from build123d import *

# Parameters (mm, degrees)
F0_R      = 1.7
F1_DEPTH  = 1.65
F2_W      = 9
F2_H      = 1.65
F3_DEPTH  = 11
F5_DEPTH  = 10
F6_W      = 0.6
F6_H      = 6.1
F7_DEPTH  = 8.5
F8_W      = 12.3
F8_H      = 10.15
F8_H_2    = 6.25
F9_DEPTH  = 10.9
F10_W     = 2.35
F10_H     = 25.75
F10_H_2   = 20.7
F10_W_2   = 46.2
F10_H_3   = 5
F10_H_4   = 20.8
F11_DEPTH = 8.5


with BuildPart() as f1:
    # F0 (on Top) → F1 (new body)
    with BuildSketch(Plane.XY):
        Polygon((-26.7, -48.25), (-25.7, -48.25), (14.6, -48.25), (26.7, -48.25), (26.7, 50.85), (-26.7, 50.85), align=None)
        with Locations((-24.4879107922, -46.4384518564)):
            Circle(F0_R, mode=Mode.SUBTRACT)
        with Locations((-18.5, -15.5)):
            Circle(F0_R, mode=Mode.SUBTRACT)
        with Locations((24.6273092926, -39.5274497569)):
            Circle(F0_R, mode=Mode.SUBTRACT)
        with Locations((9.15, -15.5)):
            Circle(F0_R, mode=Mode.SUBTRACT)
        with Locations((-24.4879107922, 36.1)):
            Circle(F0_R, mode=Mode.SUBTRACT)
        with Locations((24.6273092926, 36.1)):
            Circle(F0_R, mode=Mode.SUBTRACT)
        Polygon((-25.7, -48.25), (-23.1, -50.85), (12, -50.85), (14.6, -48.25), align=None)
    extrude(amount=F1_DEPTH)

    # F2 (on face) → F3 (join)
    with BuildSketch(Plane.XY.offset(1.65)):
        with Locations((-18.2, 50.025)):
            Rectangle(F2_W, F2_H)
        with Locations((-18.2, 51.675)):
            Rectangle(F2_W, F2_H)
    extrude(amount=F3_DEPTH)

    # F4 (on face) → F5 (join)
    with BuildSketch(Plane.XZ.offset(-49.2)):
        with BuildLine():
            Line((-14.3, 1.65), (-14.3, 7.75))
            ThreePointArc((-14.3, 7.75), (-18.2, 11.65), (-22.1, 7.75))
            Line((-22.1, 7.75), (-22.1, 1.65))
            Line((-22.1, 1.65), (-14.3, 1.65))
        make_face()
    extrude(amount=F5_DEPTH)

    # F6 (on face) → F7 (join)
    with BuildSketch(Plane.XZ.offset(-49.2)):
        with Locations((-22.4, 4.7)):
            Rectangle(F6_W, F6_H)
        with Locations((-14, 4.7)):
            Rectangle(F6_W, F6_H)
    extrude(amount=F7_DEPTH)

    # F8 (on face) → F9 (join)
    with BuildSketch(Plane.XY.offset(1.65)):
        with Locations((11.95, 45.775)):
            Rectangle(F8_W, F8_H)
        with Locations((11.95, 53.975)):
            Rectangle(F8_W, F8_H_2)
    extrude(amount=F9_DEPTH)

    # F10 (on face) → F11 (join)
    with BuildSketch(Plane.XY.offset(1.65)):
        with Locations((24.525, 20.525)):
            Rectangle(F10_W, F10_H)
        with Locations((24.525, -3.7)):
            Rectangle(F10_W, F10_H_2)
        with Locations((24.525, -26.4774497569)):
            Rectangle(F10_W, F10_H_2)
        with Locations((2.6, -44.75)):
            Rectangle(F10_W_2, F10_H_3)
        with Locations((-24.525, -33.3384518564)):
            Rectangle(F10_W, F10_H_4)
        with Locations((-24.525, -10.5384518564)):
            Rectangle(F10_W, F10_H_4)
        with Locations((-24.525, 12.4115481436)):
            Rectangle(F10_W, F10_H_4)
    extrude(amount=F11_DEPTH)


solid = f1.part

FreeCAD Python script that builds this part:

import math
import FreeCAD as App
import Part
import Sketcher
from FreeCAD import Vector

doc = App.newDocument("Part")
params = doc.addObject("Spreadsheet::Sheet", "Params")
for row, (alias, value) in enumerate([
    ("sketch1_diameter", "3.4 mm"),
    ("sketch1_width", "1 mm"),
    ("sketch1_width2", "35.1 mm"),
    ("sketch1_width3", "12.1 mm"),
    ("sketch1_width4", "53.4 mm"),
    ("pad1_length", "1.65 mm"),
    ("sketch2_width", "9 mm"),
    ("sketch2_height", "3.3 mm"),
    ("pad2_length", "11 mm"),
    ("sketch3_radius", "3.9 mm"),
    ("sketch3_height", "6.1 mm"),
    ("pad3_length", "10 mm"),
    ("sketch4_width", "0.6 mm"),
    ("sketch4_height", "6.1 mm"),
    ("pad4_length", "8.5 mm"),
    ("sketch5_width", "12.3 mm"),
    ("sketch5_height", "16.4 mm"),
    ("pad5_length", "10.9 mm"),
    ("sketch6_height", "5 mm"),
    ("sketch6_width", "46.2 mm"),
    ("sketch6_height2", "20.7 mm"),
    ("sketch6_height3", "20.8 mm"),
    ("sketch6_width2", "2.35 mm"),
    ("pad6_length", "8.5 mm"),
], start=1):
    params.set(f"A{row}", alias)
    params.set(f"B{row}", "=" + value)
    params.setAlias(f"B{row}", alias)

body = doc.addObject("PartDesign::Body", "Body")

# Sketch on XY plane
sketch1 = body.newObject("Sketcher::SketchObject", "Sketch")
sketch1.AttachmentSupport = (doc.getObject("XY_Plane"), [""])
sketch1.MapMode = "FlatFace"
sketch1.addGeometry([
    Part.LineSegment(Vector(-26.7, -48.2, 0), Vector(-25.7, -48.2, 0)),  # 0
    Part.LineSegment(Vector(-25.7, -48.2, 0), Vector(-23.1, -50.9, 0)),  # 1
    Part.LineSegment(Vector(-23.1, -50.9, 0), Vector(12, -50.9, 0)),  # 2
    Part.LineSegment(Vector(12, -50.9, 0), Vector(14.6, -48.2, 0)),  # 3
    Part.LineSegment(Vector(14.6, -48.2, 0), Vector(26.7, -48.2, 0)),  # 4
    Part.LineSegment(Vector(26.7, -48.2, 0), Vector(26.7, 50.9, 0)),  # 5
    Part.LineSegment(Vector(26.7, 50.9, 0), Vector(-26.7, 50.9, 0)),  # 6
    Part.LineSegment(Vector(-26.7, 50.9, 0), Vector(-26.7, -48.2, 0)),  # 7
    Part.Circle(Vector(-24.5, -46.4, 0), Vector(0, 0, 1), 1.7),  # 8
    Part.Circle(Vector(-18.5, -15.5, 0), Vector(0, 0, 1), 1.7),  # 9
    Part.Circle(Vector(24.6, -39.5, 0), Vector(0, 0, 1), 1.7),  # 10
    Part.Circle(Vector(9.2, -15.5, 0), Vector(0, 0, 1), 1.7),  # 11
    Part.Circle(Vector(-24.5, 36.1, 0), Vector(0, 0, 1), 1.7),  # 12
    Part.Circle(Vector(24.6, 36.1, 0), Vector(0, 0, 1), 1.7),  # 13
], False)
sketch1.addConstraint([
    Sketcher.Constraint("Coincident", 0, 2, 1, 1),
    Sketcher.Constraint("Coincident", 1, 2, 2, 1),
    Sketcher.Constraint("Coincident", 2, 2, 3, 1),
    Sketcher.Constraint("Coincident", 3, 2, 4, 1),
    Sketcher.Constraint("Coincident", 4, 2, 5, 1),
    Sketcher.Constraint("Coincident", 5, 2, 6, 1),
    Sketcher.Constraint("Coincident", 6, 2, 7, 1),
    Sketcher.Constraint("Coincident", 7, 2, 0, 1),
    Sketcher.Constraint("Horizontal", 0),
    Sketcher.Constraint("Horizontal", 2),
    Sketcher.Constraint("Horizontal", 4),
    Sketcher.Constraint("Vertical", 5),
    Sketcher.Constraint("Horizontal", 6),
    Sketcher.Constraint("Vertical", 7),
    Sketcher.Constraint("Equal", 8, 9),
    Sketcher.Constraint("Equal", 9, 10),
    Sketcher.Constraint("Equal", 10, 11),
    Sketcher.Constraint("Equal", 11, 12),
    Sketcher.Constraint("Equal", 12, 13),
    Sketcher.Constraint("Symmetric", 4, 2, 7, 2, -2),
    Sketcher.Constraint("Perpendicular", 1, 3),
    Sketcher.Constraint("Horizontal", 9, 3, 11, 3),
    Sketcher.Constraint("Horizontal", 12, 3, 13, 3),
    Sketcher.Constraint("Vertical", 8, 3, 12, 3),
    Sketcher.Constraint("Vertical", 10, 3, 13, 3),
    Sketcher.Constraint("Equal", 1, 3),
    Sketcher.Constraint("Diameter", 8, 3.4),
    Sketcher.Constraint("DistanceX", 0, 1, 0, 2, 1.0),
    Sketcher.Constraint("DistanceX", 2, 1, 2, 2, 35.1),
    Sketcher.Constraint("DistanceX", 4, 1, 4, 2, 12.1),
    Sketcher.Constraint("DistanceX", 6, 2, 6, 1, 53.4),
    Sketcher.Constraint("DistanceY", 5, 1, 5, 2, 99.1),
    Sketcher.Constraint("DistanceX", 9, 3, -1, 1, 18.5),
    Sketcher.Constraint("DistanceY", 9, 3, -1, 1, 15.5),
    Sketcher.Constraint("DistanceY", -1, 1, 12, 3, 36.1),
    Sketcher.Constraint("DistanceX", -1, 1, 11, 3, 9.15),
    Sketcher.Constraint("DistanceY", 0, 2, -1, 1, 48.25),
    Sketcher.Constraint("DistanceX", 8, 3, -1, 1, 24.487911),
    Sketcher.Constraint("DistanceY", 8, 3, -1, 1, 46.438452),
    Sketcher.Constraint("DistanceX", -1, 1, 10, 3, 24.627309),
    Sketcher.Constraint("DistanceY", 10, 3, -1, 1, 39.52745),
])
sketch1.setExpression("Constraints[26]", "Params.sketch1_diameter")
sketch1.setExpression("Constraints[27]", "Params.sketch1_width")
sketch1.setExpression("Constraints[28]", "Params.sketch1_width2")
sketch1.setExpression("Constraints[29]", "Params.sketch1_width3")
sketch1.setExpression("Constraints[30]", "Params.sketch1_width4")
pad1 = body.newObject("PartDesign::Pad", "Pad")
pad1.Profile = sketch1
pad1.setExpression("Length", "Params.pad1_length")

# Sketch on XY plane
sketch2 = body.newObject("Sketcher::SketchObject", "Sketch001")
sketch2.AttachmentSupport = (doc.getObject("XY_Plane"), [""])
sketch2.MapMode = "FlatFace"
sketch2.AttachmentOffset = App.Placement(Vector(0, 0, 1.65), App.Rotation())
sketch2.addGeometry([
    Part.LineSegment(Vector(-22.7, 49.2, 0), Vector(-13.7, 49.2, 0)),
    Part.LineSegment(Vector(-13.7, 49.2, 0), Vector(-13.7, 52.5, 0)),
    Part.LineSegment(Vector(-13.7, 52.5, 0), Vector(-22.7, 52.5, 0)),
    Part.LineSegment(Vector(-22.7, 52.5, 0), Vector(-22.7, 49.2, 0)),
], False)
sketch2.addConstraint([
    Sketcher.Constraint("Coincident", 0, 2, 1, 1),
    Sketcher.Constraint("Coincident", 1, 2, 2, 1),
    Sketcher.Constraint("Coincident", 2, 2, 3, 1),
    Sketcher.Constraint("Coincident", 3, 2, 0, 1),
    Sketcher.Constraint("Horizontal", 0),
    Sketcher.Constraint("Vertical", 1),
    Sketcher.Constraint("Horizontal", 2),
    Sketcher.Constraint("Vertical", 3),
    Sketcher.Constraint("DistanceX", 0, 1, 0, 2, 9.0),
    Sketcher.Constraint("DistanceY", 1, 1, 1, 2, 3.3),
    Sketcher.Constraint("DistanceX", 0, 2, -1, 1, 13.7),
    Sketcher.Constraint("DistanceY", -1, 1, 0, 2, 49.2),
])
sketch2.setExpression("Constraints[8]", "Params.sketch2_width")
sketch2.setExpression("Constraints[9]", "Params.sketch2_height")
pad2 = body.newObject("PartDesign::Pad", "Pad001")
pad2.Profile = sketch2
pad2.setExpression("Length", "Params.pad2_length")

# Sketch on XZ plane
sketch3 = body.newObject("Sketcher::SketchObject", "Sketch002")
sketch3.AttachmentSupport = (doc.getObject("XZ_Plane"), [""])
sketch3.MapMode = "FlatFace"
sketch3.AttachmentOffset = App.Placement(Vector(0, 0, -49.2), App.Rotation())
sketch3.addGeometry([
    Part.LineSegment(Vector(-14.3, 1.6, 0), Vector(-14.3, 7.8, 0)),
    Part.ArcOfCircle(Part.Circle(Vector(-18.2, 7.8, 0), Vector(0, 0, 1), 3.9), math.radians(0), math.radians(180)),
    Part.LineSegment(Vector(-22.1, 7.8, 0), Vector(-22.1, 1.6, 0)),
    Part.LineSegment(Vector(-22.1, 1.6, 0), Vector(-14.3, 1.6, 0)),
], False)
sketch3.addConstraint([
    Sketcher.Constraint("Tangent", 0, 2, 1, 1),
    Sketcher.Constraint("Tangent", 1, 2, 2, 1),
    Sketcher.Constraint("Coincident", 2, 2, 3, 1),
    Sketcher.Constraint("Coincident", 3, 2, 0, 1),
    Sketcher.Constraint("Vertical", 0),
    Sketcher.Constraint("Vertical", 2),
    Sketcher.Constraint("Horizontal", 3),
    Sketcher.Constraint("Radius", 1, 3.9),
    Sketcher.Constraint("DistanceY", 0, 1, 0, 2, 6.1),
    Sketcher.Constraint("DistanceX", 1, 3, -1, 1, 18.2),
    Sketcher.Constraint("DistanceY", -1, 1, 1, 3, 7.75),
])
sketch3.setExpression("Constraints[7]", "Params.sketch3_radius")
sketch3.setExpression("Constraints[8]", "Params.sketch3_height")
pad3 = body.newObject("PartDesign::Pad", "Pad002")
pad3.Profile = sketch3
pad3.setExpression("Length", "Params.pad3_length")

# Sketch on XZ plane
sketch4 = body.newObject("Sketcher::SketchObject", "Sketch003")
sketch4.AttachmentSupport = (doc.getObject("XZ_Plane"), [""])
sketch4.MapMode = "FlatFace"
sketch4.AttachmentOffset = App.Placement(Vector(0, 0, -49.2), App.Rotation())
sketch4.addGeometry([
    Part.LineSegment(Vector(-22.7, 7.8, 0), Vector(-22.7, 1.6, 0)),  # 0
    Part.LineSegment(Vector(-22.7, 1.6, 0), Vector(-22.1, 1.6, 0)),  # 1
    Part.LineSegment(Vector(-22.1, 1.6, 0), Vector(-22.1, 7.8, 0)),  # 2
    Part.LineSegment(Vector(-22.1, 7.8, 0), Vector(-22.7, 7.8, 0)),  # 3
    Part.LineSegment(Vector(-14.3, 7.8, 0), Vector(-14.3, 1.6, 0)),  # 4
    Part.LineSegment(Vector(-14.3, 1.6, 0), Vector(-13.7, 1.6, 0)),  # 5
    Part.LineSegment(Vector(-13.7, 1.6, 0), Vector(-13.7, 7.8, 0)),  # 6
    Part.LineSegment(Vector(-13.7, 7.8, 0), Vector(-14.3, 7.8, 0)),  # 7
], False)
sketch4.addConstraint([
    Sketcher.Constraint("Coincident", 0, 2, 1, 1),
    Sketcher.Constraint("Coincident", 1, 2, 2, 1),
    Sketcher.Constraint("Coincident", 2, 2, 3, 1),
    Sketcher.Constraint("Coincident", 3, 2, 0, 1),
    Sketcher.Constraint("Coincident", 4, 2, 5, 1),
    Sketcher.Constraint("Coincident", 5, 2, 6, 1),
    Sketcher.Constraint("Coincident", 6, 2, 7, 1),
    Sketcher.Constraint("Coincident", 7, 2, 4, 1),
    Sketcher.Constraint("Vertical", 0),
    Sketcher.Constraint("Horizontal", 1),
    Sketcher.Constraint("Vertical", 2),
    Sketcher.Constraint("Horizontal", 3),
    Sketcher.Constraint("Vertical", 4),
    Sketcher.Constraint("Horizontal", 5),
    Sketcher.Constraint("Vertical", 6),
    Sketcher.Constraint("Horizontal", 7),
    Sketcher.Constraint("Horizontal", 1, 2, 4, 2),
    Sketcher.Constraint("Horizontal", 3, 2, 6, 2),
    Sketcher.Constraint("Equal", 3, 5),
    Sketcher.Constraint("DistanceX", 1, 1, 1, 2, 0.6),
    Sketcher.Constraint("DistanceY", 0, 2, 0, 1, 6.1),
    Sketcher.Constraint("DistanceX", 0, 2, 5, 2, 9.0),
    Sketcher.Constraint("DistanceX", 0, 2, -1, 1, 22.7),
    Sketcher.Constraint("DistanceY", -1, 1, 0, 2, 1.65),
])
sketch4.setExpression("Constraints[19]", "Params.sketch4_width")
sketch4.setExpression("Constraints[20]", "Params.sketch4_height")
pad4 = body.newObject("PartDesign::Pad", "Pad003")
pad4.Profile = sketch4
pad4.setExpression("Length", "Params.pad4_length")

# Sketch on XY plane
sketch5 = body.newObject("Sketcher::SketchObject", "Sketch004")
sketch5.AttachmentSupport = (doc.getObject("XY_Plane"), [""])
sketch5.MapMode = "FlatFace"
sketch5.AttachmentOffset = App.Placement(Vector(0, 0, 1.65), App.Rotation())
sketch5.addGeometry([
    Part.LineSegment(Vector(6, 41, 0), Vector(18, 41, 0)),
    Part.LineSegment(Vector(18, 41, 0), Vector(18, 57, 0)),
    Part.LineSegment(Vector(18, 57, 0), Vector(6, 57, 0)),
    Part.LineSegment(Vector(6, 57, 0), Vector(6, 41, 0)),
], False)
sketch5.addConstraint([
    Sketcher.Constraint("Coincident", 0, 2, 1, 1),
    Sketcher.Constraint("Coincident", 1, 2, 2, 1),
    Sketcher.Constraint("Coincident", 2, 2, 3, 1),
    Sketcher.Constraint("Coincident", 3, 2, 0, 1),
    Sketcher.Constraint("Horizontal", 0),
    Sketcher.Constraint("Vertical", 1),
    Sketcher.Constraint("Horizontal", 2),
    Sketcher.Constraint("Vertical", 3),
    Sketcher.Constraint("DistanceX", 0, 1, 0, 2, 12.3),
    Sketcher.Constraint("DistanceY", 1, 1, 1, 2, 16.4),
    Sketcher.Constraint("DistanceX", -1, 1, 0, 2, 18.1),
    Sketcher.Constraint("DistanceY", -1, 1, 0, 2, 40.7),
])
sketch5.setExpression("Constraints[8]", "Params.sketch5_width")
sketch5.setExpression("Constraints[9]", "Params.sketch5_height")
pad5 = body.newObject("PartDesign::Pad", "Pad004")
pad5.Profile = sketch5
pad5.setExpression("Length", "Params.pad5_length")

# Sketch on XY plane
sketch6 = body.newObject("Sketcher::SketchObject", "Sketch005")
sketch6.AttachmentSupport = (doc.getObject("XY_Plane"), [""])
sketch6.MapMode = "FlatFace"
sketch6.AttachmentOffset = App.Placement(Vector(0, 0, 1.65), App.Rotation())
sketch6.addGeometry([
    Part.LineSegment(Vector(23.4, 33.4, 0), Vector(23.4, 7.7, 0)),  # 0
    Part.LineSegment(Vector(23.4, 7.7, 0), Vector(25.7, 7.7, 0)),  # 1
    Part.LineSegment(Vector(25.7, 7.7, 0), Vector(25.7, 33.4, 0)),  # 2
    Part.LineSegment(Vector(25.7, 33.4, 0), Vector(23.4, 33.4, 0)),  # 3
    Part.LineSegment(Vector(23.4, 6.7, 0), Vector(23.4, -14.1, 0)),  # 4
    Part.LineSegment(Vector(23.4, -14.1, 0), Vector(25.7, -14.1, 0)),  # 5
    Part.LineSegment(Vector(25.7, -14.1, 0), Vector(25.7, 6.7, 0)),  # 6
    Part.LineSegment(Vector(25.7, 6.7, 0), Vector(23.4, 6.7, 0)),  # 7
    Part.LineSegment(Vector(23.4, -16.1, 0), Vector(23.4, -36.8, 0)),  # 8
    Part.LineSegment(Vector(23.4, -36.8, 0), Vector(25.7, -36.8, 0)),  # 9
    Part.LineSegment(Vector(25.7, -36.8, 0), Vector(25.7, -16.1, 0)),  # 10
    Part.LineSegment(Vector(25.7, -16.1, 0), Vector(23.4, -16.1, 0)),  # 11
    Part.LineSegment(Vector(-20.5, -42.2, 0), Vector(-20.5, -47.2, 0)),  # 12
    Part.LineSegment(Vector(-20.5, -47.2, 0), Vector(25.7, -47.2, 0)),  # 13
    Part.LineSegment(Vector(25.7, -47.2, 0), Vector(25.7, -42.2, 0)),  # 14
    Part.LineSegment(Vector(25.7, -42.2, 0), Vector(-20.5, -42.2, 0)),  # 15
    Part.LineSegment(Vector(-25.7, -22.9, 0), Vector(-25.7, -43.7, 0)),  # 16
    Part.LineSegment(Vector(-25.7, -43.7, 0), Vector(-23.4, -43.7, 0)),  # 17
    Part.LineSegment(Vector(-23.4, -43.7, 0), Vector(-23.4, -22.9, 0)),  # 18
    Part.LineSegment(Vector(-23.4, -22.9, 0), Vector(-25.7, -22.9, 0)),  # 19
    Part.LineSegment(Vector(-25.7, -0.1, 0), Vector(-25.7, -20.9, 0)),  # 20
    Part.LineSegment(Vector(-25.7, -20.9, 0), Vector(-23.4, -20.9, 0)),  # 21
    Part.LineSegment(Vector(-23.4, -20.9, 0), Vector(-23.4, -0.1, 0)),  # 22
    Part.LineSegment(Vector(-23.4, -0.1, 0), Vector(-25.7, -0.1, 0)),  # 23
    Part.LineSegment(Vector(-25.7, 22.8, 0), Vector(-25.7, 2, 0)),  # 24
    Part.LineSegment(Vector(-25.7, 2, 0), Vector(-23.4, 2, 0)),  # 25
    Part.LineSegment(Vector(-23.4, 2, 0), Vector(-23.4, 22.8, 0)),  # 26
    Part.LineSegment(Vector(-23.4, 22.8, 0), Vector(-25.7, 22.8, 0)),  # 27
], False)
sketch6.addConstraint([
    Sketcher.Constraint("Coincident", 0, 2, 1, 1),
    Sketcher.Constraint("Coincident", 1, 2, 2, 1),
    Sketcher.Constraint("Coincident", 2, 2, 3, 1),
    Sketcher.Constraint("Coincident", 3, 2, 0, 1),
    Sketcher.Constraint("Coincident", 4, 2, 5, 1),
    Sketcher.Constraint("Coincident", 5, 2, 6, 1),
    Sketcher.Constraint("Coincident", 6, 2, 7, 1),
    Sketcher.Constraint("Coincident", 7, 2, 4, 1),
    Sketcher.Constraint("Coincident", 8, 2, 9, 1),
    Sketcher.Constraint("Coincident", 9, 2, 10, 1),
    Sketcher.Constraint("Coincident", 10, 2, 11, 1),
    Sketcher.Constraint("Coincident", 11, 2, 8, 1),
    Sketcher.Constraint("Coincident", 12, 2, 13, 1),
    Sketcher.Constraint("Coincident", 13, 2, 14, 1),
    Sketcher.Constraint("Coincident", 14, 2, 15, 1),
    Sketcher.Constraint("Coincident", 15, 2, 12, 1),
    Sketcher.Constraint("Coincident", 16, 2, 17, 1),
    Sketcher.Constraint("Coincident", 17, 2, 18, 1),
    Sketcher.Constraint("Coincident", 18, 2, 19, 1),
    Sketcher.Constraint("Coincident", 19, 2, 16, 1),
    Sketcher.Constraint("Coincident", 20, 2, 21, 1),
    Sketcher.Constraint("Coincident", 21, 2, 22, 1),
    Sketcher.Constraint("Coincident", 22, 2, 23, 1),
    Sketcher.Constraint("Coincident", 23, 2, 20, 1),
    Sketcher.Constraint("Coincident", 24, 2, 25, 1),
    Sketcher.Constraint("Coincident", 25, 2, 26, 1),
    Sketcher.Constraint("Coincident", 26, 2, 27, 1),
    Sketcher.Constraint("Coincident", 27, 2, 24, 1),
    Sketcher.Constraint("Vertical", 0),
    Sketcher.Constraint("Horizontal", 1),
    Sketcher.Constraint("Vertical", 2),
    Sketcher.Constraint("Horizontal", 3),
    Sketcher.Constraint("Vertical", 4),
    Sketcher.Constraint("Horizontal", 5),
    Sketcher.Constraint("Vertical", 6),
    Sketcher.Constraint("Horizontal", 7),
    Sketcher.Constraint("Vertical", 8),
    Sketcher.Constraint("Horizontal", 9),
    Sketcher.Constraint("Vertical", 10),
    Sketcher.Constraint("Horizontal", 11),
    Sketcher.Constraint("Vertical", 12),
    Sketcher.Constraint("Horizontal", 13),
    Sketcher.Constraint("Vertical", 14),
    Sketcher.Constraint("Horizontal", 15),
    Sketcher.Constraint("Vertical", 16),
    Sketcher.Constraint("Horizontal", 17),
    Sketcher.Constraint("Vertical", 18),
    Sketcher.Constraint("Horizontal", 19),
    Sketcher.Constraint("Vertical", 20),
    Sketcher.Constraint("Horizontal", 21),
    Sketcher.Constraint("Vertical", 22),
    Sketcher.Constraint("Horizontal", 23),
    Sketcher.Constraint("Vertical", 24),
    Sketcher.Constraint("Horizontal", 25),
    Sketcher.Constraint("Vertical", 26),
    Sketcher.Constraint("Horizontal", 27),
    Sketcher.Constraint("Vertical", 3, 2, 4, 2),
    Sketcher.Constraint("Vertical", 2, 2, 5, 2),
    Sketcher.Constraint("Vertical", 7, 2, 8, 2),
    Sketcher.Constraint("Vertical", 6, 2, 9, 2),
    Sketcher.Constraint("Vertical", 10, 2, 13, 2),
    Sketcher.Constraint("Vertical", 19, 2, 20, 2),
    Sketcher.Constraint("Vertical", 18, 2, 21, 2),
    Sketcher.Constraint("Vertical", 23, 2, 24, 2),
    Sketcher.Constraint("Vertical", 22, 2, 25, 2),
    Sketcher.Constraint("Equal", 11, 17),
    Sketcher.Constraint("Equal", 6, 8),
    Sketcher.Constraint("Equal", 18, 20),
    Sketcher.Constraint("Equal", 22, 24),
    Sketcher.Constraint("DistanceY", 12, 2, 12, 1, 5.0),
    Sketcher.Constraint("DistanceX", 13, 1, 13, 2, 46.2),
    Sketcher.Constraint("DistanceY", 4, 2, 4, 1, 20.7),
    Sketcher.Constraint("DistanceY", 16, 2, 16, 1, 20.8),
    Sketcher.Constraint("DistanceY", 6, 2, 1, 2, 1.0),
    Sketcher.Constraint("DistanceY", 19, 2, 20, 2, 2.0),
    Sketcher.Constraint("DistanceX", 1, 1, 1, 2, 2.35),
    Sketcher.Constraint("DistanceY", 0, 2, 0, 1, 25.75),
    Sketcher.Constraint("DistanceX", -1, 1, 1, 2, 25.7),
    Sketcher.Constraint("DistanceY", -1, 1, 2, 2, 33.4),
    Sketcher.Constraint("DistanceX", 16, 2, -1, 1, 25.7),
    Sketcher.Constraint("DistanceY", 12, 2, 4, 2, 33.2),
    Sketcher.Constraint("DistanceY", 23, 2, 24, 2, 2.15),
    Sketcher.Constraint("DistanceY", 8, 2, -1, 1, 36.82745),
    Sketcher.Constraint("DistanceY", 16, 2, -1, 1, 43.738452),
])
sketch6.setExpression("Constraints[69]", "Params.sketch6_height")
sketch6.setExpression("Constraints[70]", "Params.sketch6_width")
sketch6.setExpression("Constraints[71]", "Params.sketch6_height2")
sketch6.setExpression("Constraints[72]", "Params.sketch6_height3")
sketch6.setExpression("Constraints[75]", "Params.sketch6_width2")
pad6 = body.newObject("PartDesign::Pad", "Pad005")
pad6.Profile = sketch6
pad6.setExpression("Length", "Params.pad6_length")

doc.recompute()
